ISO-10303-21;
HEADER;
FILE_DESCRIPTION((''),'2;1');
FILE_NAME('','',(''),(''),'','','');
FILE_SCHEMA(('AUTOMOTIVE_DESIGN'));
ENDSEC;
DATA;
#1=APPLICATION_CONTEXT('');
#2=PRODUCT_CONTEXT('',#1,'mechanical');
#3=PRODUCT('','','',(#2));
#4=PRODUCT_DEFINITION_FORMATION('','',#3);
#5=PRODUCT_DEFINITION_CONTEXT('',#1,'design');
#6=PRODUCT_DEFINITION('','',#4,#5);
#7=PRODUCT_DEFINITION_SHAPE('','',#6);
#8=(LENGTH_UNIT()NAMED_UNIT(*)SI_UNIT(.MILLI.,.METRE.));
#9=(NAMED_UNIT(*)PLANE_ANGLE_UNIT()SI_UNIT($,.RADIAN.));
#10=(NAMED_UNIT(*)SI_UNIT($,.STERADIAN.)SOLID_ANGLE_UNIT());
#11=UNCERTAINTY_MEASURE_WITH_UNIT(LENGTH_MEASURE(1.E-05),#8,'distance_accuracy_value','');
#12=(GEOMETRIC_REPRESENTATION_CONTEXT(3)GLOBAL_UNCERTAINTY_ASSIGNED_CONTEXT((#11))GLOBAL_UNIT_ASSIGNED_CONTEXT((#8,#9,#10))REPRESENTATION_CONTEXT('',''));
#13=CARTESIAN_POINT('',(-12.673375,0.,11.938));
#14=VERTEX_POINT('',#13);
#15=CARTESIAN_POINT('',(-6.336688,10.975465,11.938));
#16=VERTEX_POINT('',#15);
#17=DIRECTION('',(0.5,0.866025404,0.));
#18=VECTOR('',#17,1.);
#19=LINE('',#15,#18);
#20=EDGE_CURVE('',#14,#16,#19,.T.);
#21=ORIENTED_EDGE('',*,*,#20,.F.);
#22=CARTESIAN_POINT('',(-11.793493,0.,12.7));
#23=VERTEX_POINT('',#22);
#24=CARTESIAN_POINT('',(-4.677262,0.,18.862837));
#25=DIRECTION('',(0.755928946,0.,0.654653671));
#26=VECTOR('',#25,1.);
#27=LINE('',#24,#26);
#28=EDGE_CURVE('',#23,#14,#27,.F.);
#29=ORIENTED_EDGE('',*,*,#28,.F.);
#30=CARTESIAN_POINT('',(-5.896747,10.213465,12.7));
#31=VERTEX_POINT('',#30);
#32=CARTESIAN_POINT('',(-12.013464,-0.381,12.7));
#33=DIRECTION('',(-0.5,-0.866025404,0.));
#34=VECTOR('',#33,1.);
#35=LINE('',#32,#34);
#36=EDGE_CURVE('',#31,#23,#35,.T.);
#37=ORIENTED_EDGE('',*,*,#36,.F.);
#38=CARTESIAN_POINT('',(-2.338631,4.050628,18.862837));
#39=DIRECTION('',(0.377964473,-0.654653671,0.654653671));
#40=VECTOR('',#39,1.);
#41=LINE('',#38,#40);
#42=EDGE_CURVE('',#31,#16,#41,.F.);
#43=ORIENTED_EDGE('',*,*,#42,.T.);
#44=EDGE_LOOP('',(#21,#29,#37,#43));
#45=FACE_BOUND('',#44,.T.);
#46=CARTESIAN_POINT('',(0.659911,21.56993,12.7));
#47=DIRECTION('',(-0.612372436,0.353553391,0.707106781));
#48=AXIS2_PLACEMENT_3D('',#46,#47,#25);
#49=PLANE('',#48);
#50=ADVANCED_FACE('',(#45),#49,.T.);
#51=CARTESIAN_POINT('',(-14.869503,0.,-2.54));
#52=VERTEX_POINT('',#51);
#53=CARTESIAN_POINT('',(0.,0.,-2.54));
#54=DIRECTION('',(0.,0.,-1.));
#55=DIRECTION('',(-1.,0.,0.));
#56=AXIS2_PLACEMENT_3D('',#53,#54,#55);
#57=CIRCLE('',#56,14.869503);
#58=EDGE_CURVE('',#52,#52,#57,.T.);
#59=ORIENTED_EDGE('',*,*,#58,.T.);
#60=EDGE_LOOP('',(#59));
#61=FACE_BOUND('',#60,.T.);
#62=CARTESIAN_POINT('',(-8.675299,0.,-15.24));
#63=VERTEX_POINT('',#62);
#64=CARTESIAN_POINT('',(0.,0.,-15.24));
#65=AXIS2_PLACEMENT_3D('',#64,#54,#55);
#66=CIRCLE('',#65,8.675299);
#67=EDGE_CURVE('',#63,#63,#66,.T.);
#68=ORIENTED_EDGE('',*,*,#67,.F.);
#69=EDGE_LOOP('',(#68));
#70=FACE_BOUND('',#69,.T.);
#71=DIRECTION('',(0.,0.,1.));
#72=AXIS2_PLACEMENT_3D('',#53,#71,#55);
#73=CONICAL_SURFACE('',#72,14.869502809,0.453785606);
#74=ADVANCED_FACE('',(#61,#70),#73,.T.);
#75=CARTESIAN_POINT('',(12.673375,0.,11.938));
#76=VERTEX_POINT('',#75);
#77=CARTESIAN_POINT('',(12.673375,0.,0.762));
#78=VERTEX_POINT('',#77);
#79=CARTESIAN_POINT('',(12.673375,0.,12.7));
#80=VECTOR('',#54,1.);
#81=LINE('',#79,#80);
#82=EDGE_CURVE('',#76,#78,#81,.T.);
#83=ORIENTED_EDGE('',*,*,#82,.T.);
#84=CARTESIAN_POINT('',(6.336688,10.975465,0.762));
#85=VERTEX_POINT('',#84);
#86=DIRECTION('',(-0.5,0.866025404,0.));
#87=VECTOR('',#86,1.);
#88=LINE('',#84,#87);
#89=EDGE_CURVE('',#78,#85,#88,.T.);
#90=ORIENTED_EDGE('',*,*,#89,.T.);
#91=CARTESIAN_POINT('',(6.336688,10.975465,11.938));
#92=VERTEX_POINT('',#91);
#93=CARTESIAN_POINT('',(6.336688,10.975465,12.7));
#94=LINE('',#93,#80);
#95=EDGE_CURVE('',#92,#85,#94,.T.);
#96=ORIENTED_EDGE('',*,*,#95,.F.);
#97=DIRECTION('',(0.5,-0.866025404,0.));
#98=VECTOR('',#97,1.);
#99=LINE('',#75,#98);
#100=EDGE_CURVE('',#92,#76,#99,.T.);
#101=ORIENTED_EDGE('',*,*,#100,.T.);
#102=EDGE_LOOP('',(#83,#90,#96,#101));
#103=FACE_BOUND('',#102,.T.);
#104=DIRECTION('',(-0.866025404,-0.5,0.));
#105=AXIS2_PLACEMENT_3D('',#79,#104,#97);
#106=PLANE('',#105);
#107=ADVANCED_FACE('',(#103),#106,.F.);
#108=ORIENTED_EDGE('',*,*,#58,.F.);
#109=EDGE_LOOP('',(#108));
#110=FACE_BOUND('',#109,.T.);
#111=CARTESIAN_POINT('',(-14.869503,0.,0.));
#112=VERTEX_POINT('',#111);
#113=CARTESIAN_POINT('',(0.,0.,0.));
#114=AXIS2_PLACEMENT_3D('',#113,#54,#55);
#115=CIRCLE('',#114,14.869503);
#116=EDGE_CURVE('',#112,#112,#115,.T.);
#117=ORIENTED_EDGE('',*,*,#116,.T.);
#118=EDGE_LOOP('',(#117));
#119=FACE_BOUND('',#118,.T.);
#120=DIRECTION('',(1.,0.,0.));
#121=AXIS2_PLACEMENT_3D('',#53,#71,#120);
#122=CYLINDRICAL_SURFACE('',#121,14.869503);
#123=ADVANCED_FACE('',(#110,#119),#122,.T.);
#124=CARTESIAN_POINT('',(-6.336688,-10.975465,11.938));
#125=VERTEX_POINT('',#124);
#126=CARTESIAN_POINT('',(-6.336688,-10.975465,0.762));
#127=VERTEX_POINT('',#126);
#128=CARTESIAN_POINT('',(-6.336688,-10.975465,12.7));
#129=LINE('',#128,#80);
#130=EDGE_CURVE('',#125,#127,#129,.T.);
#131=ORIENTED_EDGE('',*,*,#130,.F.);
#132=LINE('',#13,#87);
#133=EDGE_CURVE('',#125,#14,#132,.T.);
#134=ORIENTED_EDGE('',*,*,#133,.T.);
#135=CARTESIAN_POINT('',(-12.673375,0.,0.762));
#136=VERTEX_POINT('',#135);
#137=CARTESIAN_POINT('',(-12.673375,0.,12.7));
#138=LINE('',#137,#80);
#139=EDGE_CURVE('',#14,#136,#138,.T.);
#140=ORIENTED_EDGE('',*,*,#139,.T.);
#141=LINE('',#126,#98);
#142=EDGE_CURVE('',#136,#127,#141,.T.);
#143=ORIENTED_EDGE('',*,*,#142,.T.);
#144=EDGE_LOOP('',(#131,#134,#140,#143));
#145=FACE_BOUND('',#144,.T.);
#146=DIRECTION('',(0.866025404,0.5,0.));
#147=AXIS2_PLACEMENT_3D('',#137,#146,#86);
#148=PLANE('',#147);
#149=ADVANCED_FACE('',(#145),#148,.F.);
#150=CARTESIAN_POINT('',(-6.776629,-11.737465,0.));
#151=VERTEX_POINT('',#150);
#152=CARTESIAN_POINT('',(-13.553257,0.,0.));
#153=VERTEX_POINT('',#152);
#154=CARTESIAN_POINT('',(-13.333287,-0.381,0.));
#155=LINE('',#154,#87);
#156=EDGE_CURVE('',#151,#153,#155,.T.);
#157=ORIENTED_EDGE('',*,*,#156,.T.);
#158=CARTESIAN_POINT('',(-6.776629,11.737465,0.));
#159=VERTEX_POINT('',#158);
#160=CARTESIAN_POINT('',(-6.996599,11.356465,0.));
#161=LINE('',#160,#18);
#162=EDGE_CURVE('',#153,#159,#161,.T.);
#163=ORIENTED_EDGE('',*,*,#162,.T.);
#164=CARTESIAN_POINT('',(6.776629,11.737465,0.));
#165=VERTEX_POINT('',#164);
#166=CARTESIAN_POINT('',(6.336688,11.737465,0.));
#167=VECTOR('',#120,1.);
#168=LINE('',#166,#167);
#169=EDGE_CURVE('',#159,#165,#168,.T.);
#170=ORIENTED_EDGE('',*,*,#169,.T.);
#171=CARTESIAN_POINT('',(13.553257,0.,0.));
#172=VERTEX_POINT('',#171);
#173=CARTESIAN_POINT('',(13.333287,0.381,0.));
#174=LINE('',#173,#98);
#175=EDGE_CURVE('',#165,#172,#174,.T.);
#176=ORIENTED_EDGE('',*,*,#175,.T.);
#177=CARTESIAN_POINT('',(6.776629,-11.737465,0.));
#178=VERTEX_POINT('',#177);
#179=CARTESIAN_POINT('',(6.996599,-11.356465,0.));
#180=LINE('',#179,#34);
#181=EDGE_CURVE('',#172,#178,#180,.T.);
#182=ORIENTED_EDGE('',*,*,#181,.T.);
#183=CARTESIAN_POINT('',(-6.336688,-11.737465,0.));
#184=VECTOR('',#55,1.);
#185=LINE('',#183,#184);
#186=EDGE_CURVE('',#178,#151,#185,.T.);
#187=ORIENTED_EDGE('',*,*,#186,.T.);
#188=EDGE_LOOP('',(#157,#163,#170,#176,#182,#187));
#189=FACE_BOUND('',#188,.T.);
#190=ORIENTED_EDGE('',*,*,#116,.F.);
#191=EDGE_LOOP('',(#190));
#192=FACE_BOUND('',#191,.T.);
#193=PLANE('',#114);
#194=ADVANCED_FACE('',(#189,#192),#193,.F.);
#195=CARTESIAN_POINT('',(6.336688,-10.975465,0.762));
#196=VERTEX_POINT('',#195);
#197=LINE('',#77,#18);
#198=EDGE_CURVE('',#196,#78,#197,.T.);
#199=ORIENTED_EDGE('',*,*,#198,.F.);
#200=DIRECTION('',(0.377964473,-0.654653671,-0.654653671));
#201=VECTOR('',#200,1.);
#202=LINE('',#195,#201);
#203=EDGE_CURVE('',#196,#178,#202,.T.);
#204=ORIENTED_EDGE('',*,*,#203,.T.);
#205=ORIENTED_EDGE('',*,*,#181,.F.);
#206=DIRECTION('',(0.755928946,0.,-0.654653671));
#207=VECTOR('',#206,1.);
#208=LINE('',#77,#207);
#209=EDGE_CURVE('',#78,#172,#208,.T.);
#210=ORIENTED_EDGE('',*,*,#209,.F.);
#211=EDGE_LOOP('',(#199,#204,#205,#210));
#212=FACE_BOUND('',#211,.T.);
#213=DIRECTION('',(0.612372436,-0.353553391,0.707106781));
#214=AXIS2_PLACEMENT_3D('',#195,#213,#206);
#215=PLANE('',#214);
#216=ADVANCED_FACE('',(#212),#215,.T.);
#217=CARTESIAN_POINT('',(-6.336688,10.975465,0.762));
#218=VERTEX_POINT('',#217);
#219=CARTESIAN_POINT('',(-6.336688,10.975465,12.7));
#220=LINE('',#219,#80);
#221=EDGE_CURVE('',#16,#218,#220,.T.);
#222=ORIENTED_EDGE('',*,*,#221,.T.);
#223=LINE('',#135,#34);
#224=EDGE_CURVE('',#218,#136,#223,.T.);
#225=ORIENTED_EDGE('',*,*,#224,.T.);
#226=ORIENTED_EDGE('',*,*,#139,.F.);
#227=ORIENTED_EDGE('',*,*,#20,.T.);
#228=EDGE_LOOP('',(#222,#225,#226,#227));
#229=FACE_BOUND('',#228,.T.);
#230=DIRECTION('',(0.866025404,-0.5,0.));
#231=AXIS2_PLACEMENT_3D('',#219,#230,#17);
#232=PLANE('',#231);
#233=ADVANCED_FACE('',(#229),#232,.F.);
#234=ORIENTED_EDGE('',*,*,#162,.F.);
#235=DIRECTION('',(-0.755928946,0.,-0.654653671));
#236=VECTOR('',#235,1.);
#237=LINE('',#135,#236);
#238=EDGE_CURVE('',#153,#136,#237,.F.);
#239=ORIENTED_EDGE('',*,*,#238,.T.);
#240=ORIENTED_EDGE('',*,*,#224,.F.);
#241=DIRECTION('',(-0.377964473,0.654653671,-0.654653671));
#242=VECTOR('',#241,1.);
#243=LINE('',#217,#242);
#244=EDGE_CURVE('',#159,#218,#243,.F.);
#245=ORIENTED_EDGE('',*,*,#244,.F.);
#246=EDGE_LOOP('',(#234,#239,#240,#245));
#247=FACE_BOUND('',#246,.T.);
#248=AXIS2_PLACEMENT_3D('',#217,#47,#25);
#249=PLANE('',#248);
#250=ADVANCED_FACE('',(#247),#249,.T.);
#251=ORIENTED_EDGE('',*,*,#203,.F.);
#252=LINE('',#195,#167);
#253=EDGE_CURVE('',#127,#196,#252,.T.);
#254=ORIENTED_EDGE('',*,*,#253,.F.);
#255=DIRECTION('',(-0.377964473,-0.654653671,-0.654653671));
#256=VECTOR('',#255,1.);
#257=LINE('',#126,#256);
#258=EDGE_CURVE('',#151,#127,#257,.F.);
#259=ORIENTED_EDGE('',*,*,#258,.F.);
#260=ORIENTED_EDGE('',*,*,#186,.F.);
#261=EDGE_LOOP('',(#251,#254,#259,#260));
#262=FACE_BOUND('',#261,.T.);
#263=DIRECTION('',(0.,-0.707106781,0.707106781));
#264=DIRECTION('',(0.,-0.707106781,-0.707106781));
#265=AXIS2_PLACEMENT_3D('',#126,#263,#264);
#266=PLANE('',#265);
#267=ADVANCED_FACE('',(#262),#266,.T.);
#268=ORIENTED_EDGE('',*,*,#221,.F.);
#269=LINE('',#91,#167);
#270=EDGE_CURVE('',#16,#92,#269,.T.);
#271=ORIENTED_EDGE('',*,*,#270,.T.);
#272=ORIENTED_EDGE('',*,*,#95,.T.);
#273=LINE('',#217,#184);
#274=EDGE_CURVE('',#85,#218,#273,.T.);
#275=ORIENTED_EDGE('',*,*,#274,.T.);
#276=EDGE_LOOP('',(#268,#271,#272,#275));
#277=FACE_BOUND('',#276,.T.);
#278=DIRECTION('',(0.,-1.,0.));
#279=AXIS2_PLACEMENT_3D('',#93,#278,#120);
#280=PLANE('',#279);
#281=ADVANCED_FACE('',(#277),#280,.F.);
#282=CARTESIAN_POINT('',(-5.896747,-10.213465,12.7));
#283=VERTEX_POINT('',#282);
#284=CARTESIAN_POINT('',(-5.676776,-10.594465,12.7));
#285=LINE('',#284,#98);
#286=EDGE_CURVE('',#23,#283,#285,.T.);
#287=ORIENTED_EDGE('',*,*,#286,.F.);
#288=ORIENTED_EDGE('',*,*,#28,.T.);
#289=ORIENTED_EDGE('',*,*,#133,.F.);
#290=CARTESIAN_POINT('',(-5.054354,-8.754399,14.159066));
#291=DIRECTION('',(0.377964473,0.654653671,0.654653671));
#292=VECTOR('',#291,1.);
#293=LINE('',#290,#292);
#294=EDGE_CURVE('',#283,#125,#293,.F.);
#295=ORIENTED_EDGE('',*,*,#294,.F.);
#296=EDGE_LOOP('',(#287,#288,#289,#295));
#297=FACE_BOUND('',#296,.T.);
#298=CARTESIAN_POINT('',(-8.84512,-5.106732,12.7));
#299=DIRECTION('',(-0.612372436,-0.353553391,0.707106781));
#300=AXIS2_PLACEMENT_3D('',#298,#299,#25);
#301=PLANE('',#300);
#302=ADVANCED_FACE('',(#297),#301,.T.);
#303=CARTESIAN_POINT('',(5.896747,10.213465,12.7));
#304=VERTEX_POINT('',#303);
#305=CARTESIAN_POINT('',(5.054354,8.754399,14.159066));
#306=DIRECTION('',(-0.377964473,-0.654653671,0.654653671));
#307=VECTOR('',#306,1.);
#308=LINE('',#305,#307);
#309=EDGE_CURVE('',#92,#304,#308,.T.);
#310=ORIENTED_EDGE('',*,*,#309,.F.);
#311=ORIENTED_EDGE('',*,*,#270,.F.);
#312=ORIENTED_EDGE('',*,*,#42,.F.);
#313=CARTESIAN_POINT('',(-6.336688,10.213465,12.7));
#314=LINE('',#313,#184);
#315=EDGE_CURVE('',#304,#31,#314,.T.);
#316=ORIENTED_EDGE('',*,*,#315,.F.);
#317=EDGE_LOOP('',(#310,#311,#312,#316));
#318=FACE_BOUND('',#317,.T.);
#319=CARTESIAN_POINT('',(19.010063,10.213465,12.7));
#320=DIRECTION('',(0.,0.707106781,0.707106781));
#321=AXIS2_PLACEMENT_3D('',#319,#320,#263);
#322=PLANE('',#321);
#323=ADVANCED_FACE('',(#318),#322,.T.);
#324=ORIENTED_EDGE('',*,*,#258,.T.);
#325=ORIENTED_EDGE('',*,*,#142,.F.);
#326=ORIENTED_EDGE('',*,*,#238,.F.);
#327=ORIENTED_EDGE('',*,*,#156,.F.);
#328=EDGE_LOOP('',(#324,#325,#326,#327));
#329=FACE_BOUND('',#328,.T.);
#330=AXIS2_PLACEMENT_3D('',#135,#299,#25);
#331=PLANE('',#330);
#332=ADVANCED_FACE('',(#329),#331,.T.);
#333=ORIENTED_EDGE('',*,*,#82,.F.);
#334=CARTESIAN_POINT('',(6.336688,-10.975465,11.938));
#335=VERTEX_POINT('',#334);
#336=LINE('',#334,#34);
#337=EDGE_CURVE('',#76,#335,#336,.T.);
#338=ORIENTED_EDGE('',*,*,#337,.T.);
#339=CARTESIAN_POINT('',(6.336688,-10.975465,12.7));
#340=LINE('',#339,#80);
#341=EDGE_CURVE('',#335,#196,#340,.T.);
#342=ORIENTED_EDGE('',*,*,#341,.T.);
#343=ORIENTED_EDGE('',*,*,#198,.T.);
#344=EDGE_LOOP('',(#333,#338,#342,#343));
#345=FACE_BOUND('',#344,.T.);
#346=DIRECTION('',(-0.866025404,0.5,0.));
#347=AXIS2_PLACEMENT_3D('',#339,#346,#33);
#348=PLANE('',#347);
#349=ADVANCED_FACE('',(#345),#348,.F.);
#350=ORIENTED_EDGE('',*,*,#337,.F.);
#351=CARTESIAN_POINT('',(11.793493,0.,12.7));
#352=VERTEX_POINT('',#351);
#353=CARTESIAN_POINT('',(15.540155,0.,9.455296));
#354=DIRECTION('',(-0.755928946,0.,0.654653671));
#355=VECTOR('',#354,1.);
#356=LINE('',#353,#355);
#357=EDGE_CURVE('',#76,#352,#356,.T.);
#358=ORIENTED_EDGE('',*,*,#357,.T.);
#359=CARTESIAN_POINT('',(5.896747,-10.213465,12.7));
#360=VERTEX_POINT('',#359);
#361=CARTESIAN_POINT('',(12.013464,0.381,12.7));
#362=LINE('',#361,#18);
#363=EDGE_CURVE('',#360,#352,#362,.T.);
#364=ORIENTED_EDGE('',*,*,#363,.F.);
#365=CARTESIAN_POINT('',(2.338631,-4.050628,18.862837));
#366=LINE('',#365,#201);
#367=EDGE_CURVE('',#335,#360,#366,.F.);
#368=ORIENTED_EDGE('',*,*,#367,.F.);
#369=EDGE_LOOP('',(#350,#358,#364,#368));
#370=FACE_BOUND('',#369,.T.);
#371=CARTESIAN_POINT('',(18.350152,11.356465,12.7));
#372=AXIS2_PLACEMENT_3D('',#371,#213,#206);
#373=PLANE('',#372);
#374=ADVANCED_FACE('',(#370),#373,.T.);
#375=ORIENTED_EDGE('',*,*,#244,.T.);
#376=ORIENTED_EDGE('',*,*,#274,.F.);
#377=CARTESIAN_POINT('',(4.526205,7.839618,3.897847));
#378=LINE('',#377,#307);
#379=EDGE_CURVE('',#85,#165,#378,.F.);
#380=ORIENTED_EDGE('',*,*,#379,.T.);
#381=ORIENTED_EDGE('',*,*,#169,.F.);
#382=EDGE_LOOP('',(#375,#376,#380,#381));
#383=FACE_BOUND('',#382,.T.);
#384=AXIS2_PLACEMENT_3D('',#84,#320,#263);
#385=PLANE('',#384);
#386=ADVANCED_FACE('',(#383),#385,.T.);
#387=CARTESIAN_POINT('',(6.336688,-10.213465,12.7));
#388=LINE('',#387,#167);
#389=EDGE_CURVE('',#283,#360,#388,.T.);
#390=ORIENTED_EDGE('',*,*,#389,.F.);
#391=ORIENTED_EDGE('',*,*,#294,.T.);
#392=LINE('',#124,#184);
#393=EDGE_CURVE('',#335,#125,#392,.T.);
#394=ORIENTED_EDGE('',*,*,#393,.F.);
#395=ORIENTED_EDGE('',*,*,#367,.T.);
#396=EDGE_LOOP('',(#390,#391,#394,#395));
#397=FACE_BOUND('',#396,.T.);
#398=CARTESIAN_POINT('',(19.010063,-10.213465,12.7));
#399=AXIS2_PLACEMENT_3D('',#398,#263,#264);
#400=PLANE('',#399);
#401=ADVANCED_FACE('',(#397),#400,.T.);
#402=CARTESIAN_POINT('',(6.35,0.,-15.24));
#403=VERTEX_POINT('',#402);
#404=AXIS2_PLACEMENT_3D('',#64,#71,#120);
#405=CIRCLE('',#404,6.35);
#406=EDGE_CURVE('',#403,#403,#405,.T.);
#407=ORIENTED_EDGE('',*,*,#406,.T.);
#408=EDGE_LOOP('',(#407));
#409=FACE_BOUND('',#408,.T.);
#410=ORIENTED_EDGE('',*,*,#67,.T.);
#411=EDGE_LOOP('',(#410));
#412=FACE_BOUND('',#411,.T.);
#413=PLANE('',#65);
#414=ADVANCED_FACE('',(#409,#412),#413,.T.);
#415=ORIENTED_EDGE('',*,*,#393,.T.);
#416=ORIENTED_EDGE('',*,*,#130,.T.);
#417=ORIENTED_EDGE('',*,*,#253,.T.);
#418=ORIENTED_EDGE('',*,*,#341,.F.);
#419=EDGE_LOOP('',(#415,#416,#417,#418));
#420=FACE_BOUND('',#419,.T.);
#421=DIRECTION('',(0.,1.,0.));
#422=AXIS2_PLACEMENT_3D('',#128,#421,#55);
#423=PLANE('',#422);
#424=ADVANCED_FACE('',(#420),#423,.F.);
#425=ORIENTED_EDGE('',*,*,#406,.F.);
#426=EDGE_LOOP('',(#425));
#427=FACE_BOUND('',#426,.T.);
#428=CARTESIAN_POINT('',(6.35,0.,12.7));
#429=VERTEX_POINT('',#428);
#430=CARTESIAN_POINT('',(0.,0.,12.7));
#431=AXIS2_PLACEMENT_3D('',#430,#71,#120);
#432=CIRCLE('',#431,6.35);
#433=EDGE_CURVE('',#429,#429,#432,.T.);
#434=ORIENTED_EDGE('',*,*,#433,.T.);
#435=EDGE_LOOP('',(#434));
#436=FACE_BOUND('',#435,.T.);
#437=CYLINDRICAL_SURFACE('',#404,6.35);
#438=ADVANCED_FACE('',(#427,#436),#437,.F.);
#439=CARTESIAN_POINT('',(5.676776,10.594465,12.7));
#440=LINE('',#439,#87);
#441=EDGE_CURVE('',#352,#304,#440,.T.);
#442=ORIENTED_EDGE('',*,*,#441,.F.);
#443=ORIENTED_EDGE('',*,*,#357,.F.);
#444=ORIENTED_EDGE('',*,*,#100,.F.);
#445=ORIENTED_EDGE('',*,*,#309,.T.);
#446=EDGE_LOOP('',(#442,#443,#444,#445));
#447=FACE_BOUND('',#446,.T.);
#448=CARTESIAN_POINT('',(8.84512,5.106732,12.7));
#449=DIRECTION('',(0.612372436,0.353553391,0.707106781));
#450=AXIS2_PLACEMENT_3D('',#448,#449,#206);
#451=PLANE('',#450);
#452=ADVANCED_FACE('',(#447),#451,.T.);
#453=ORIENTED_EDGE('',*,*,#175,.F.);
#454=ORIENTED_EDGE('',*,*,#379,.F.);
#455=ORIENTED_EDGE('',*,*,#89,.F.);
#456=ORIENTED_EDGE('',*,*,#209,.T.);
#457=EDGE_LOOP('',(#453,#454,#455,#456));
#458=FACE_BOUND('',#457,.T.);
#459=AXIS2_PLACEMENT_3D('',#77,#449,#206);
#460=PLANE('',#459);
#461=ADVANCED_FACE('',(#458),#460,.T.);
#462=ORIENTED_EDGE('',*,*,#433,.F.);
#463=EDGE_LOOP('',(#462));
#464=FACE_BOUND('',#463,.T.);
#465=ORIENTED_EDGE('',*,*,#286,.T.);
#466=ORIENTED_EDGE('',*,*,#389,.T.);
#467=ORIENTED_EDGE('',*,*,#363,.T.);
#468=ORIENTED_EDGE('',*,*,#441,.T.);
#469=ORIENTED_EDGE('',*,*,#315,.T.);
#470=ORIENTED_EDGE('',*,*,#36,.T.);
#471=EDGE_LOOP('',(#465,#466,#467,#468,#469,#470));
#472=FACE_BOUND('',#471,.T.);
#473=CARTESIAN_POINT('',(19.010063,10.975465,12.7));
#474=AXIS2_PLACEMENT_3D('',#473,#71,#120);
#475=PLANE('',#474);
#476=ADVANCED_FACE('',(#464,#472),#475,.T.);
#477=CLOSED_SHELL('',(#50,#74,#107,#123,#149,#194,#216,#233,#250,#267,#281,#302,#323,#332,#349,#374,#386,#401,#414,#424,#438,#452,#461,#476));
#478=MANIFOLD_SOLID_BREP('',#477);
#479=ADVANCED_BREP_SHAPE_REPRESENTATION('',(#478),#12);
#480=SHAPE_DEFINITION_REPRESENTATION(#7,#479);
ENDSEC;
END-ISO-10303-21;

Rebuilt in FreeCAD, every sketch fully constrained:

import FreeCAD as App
import Part
import Sketcher

V = App.Vector
Q = App.Units.Quantity


def edges_at(feature, points):
    """Names of the edges that pass closest to the given points."""
    edges = feature.Shape.Edges
    near = lambda p: min(range(len(edges)), key=lambda i: edges[i].distToShape(Part.Vertex(*p))[0])
    return sorted({f"Edge{near(p) + 1}" for p in points})


def add_polygon(sketch, points):
    """Adds a closed chain of lines whose ends are joined by coincident constraints."""
    first, n = sketch.GeometryCount, len(points)
    for a, b in zip(points, points[1:] + points[:1]):
        sketch.addGeometry(Part.LineSegment(App.Vector(*a, 0), App.Vector(*b, 0)), False)
    for i in range(n):
        sketch.addConstraint(Sketcher.Constraint("Coincident", first + i, 2, first + (i + 1) % n, 1))

doc = App.newDocument("Part")
body = doc.addObject("PartDesign::Body", "Body")

sketch1 = body.newObject("Sketcher::SketchObject", "Sketch")
sketch1.AttachmentSupport = (doc.getObject("XY_Plane"), [""])
sketch1.MapMode = "FlatFace"
add_polygon(sketch1, [(13, 0), (6, 11), (-6, 11), (-13, 0), (-6, -11), (6, -11)])
sketch1.addConstraint([
    Sketcher.Constraint("Horizontal", 1),
    Sketcher.Constraint("Horizontal", 4),
    Sketcher.Constraint("Symmetric", 0, 2, 3, 2, -1, 1),
    Sketcher.Constraint("Symmetric", 2, 2, 5, 2, -1, 1),
    Sketcher.Constraint("PointOnObject", 2, 2, -1),
    Sketcher.Constraint("Parallel", 2, 5),
    Sketcher.Constraint("Vertical", 1, 2, 3, 2),
    Sketcher.Constraint("Angle", 0, Q("120 deg")),
    Sketcher.Constraint("DistanceX", 1, 2, 1, 1, 12.673375),
    Sketcher.Constraint("DistanceY", 3, 2, 1, 2, 21.95093),
])
pad1 = body.newObject("PartDesign::Pad", "Pad")
pad1.Profile = sketch1
pad1.Length = Q("0.5 in")

sketch2 = body.newObject("Sketcher::SketchObject", "Sketch001")
sketch2.AttachmentSupport = (doc.getObject("XY_Plane"), [""])
sketch2.MapMode = "FlatFace"
sketch2.addGeometry(Part.Circle(V(0, 0, 0), V(0, 0, 1), 15), False)
sketch2.addConstraint([
    Sketcher.Constraint("Coincident", 0, 3, -1, 1),
    Sketcher.Constraint("Diameter", 0, 29.739006),
])
pad2 = body.newObject("PartDesign::Pad", "Pad001")
pad2.Profile = sketch2
pad2.Length = Q("0.1 in")
pad2.Reversed = True
doc.recompute()

chamfer = body.newObject("PartDesign::Chamfer", "Chamfer")
chamfer.Base = (pad2, edges_at(pad2, [
    (0, -10.975, 0),
    (-9.505, -5.488, 0),
    (-9.505, 5.488, 0),
    (0, 10.975, 0),
    (9.505, 5.488, 0),
    (9.505, -5.488, 0),
]))
chamfer.Size = Q("0.03 in")
doc.recompute()

chamfer2 = body.newObject("PartDesign::Chamfer", "Chamfer001")
chamfer2.Base = (chamfer, edges_at(chamfer, [
    (0, 10.975, 12.7),
    (-9.505, 5.488, 12.7),
    (-9.505, -5.488, 12.7),
    (0, -10.975, 12.7),
    (9.505, -5.488, 12.7),
    (9.505, 5.488, 12.7),
]))
chamfer2.Size = Q("0.03 in")

sketch3 = body.newObject("Sketcher::SketchObject", "Sketch002")
sketch3.AttachmentSupport = (doc.getObject("XY_Plane"), [""])
sketch3.MapMode = "FlatFace"
sketch3.AttachmentOffset = App.Placement(V(0, 0, -0.1 * 25.4), App.Rotation())
sketch3.addGeometry(Part.Circle(V(0, 0, 0), V(0, 0, 1), 15), False)
sketch3.addConstraint([
    Sketcher.Constraint("Coincident", 0, 3, -1, 1),
    Sketcher.Constraint("Diameter", 0, 29.739006),
])
pad3 = body.newObject("PartDesign::Pad", "Pad002")
pad3.Profile = sketch3
pad3.Length = Q("0.5 in")
pad3.Reversed = True
pad3.TaperAngle = -26

sketch4 = body.newObject("Sketcher::SketchObject", "Sketch003")
sketch4.AttachmentSupport = (doc.getObject("XY_Plane"), [""])
sketch4.MapMode = "FlatFace"
sketch4.AttachmentOffset = App.Placement(V(0, 0, 0.5 * 25.4), App.Rotation())
sketch4.addGeometry(Part.Circle(V(0, 0, 0), V(0, 0, 1), 6), False)
sketch4.addConstraint([
    Sketcher.Constraint("Coincident", 0, 3, -1, 1),
    Sketcher.Constraint("Diameter", 0, Q("0.5 in")),
])
pocket1 = body.newObject("PartDesign::Pocket", "Pocket")
pocket1.Profile = sketch4
pocket1.Type = "ThroughAll"

doc.recompute()
